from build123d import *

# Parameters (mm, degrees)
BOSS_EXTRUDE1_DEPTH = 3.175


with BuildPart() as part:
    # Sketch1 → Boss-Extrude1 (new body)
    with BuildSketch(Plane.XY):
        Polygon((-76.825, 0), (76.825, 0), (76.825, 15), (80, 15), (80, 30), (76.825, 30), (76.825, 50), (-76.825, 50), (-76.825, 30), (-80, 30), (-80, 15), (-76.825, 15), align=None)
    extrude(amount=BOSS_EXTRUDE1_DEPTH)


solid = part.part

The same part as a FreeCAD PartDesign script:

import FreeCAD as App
import Part
import Sketcher

V = App.Vector
Q = App.Units.Quantity

doc = App.newDocument("Part")
body = doc.addObject("PartDesign::Body", "Body")

sketch1 = body.newObject("Sketcher::SketchObject", "Sketch")
sketch1.AttachmentSupport = (doc.getObject("XY_Plane"), [""])
sketch1.MapMode = "FlatFace"
sketch1.addGeometry([
    Part.LineSegment(V(-76.825, 0, 0), V(76.825, 0, 0)),
    Part.LineSegment(V(76.825, 0, 0), V(76.825, 15, 0)),
    Part.LineSegment(V(76.825, 15, 0), V(80, 15, 0)),
    Part.LineSegment(V(80, 15, 0), V(80, 30, 0)),
    Part.LineSegment(V(80, 30, 0), V(76.825, 30, 0)),
    Part.LineSegment(V(76.825, 30, 0), V(76.825, 50, 0)),
    Part.LineSegment(V(76.825, 50, 0), V(-76.825, 50, 0)),
    Part.LineSegment(V(-76.825, 50, 0), V(-76.825, 30, 0)),
    Part.LineSegment(V(-76.825, 30, 0), V(-80, 30, 0)),
    Part.LineSegment(V(-80, 30, 0), V(-80, 15, 0)),
    Part.LineSegment(V(-80, 15, 0), V(-76.825, 15, 0)),
    Part.LineSegment(V(-76.825, 15, 0), V(-76.825, 0, 0)),
], False)
sketch1.addConstraint([
    Sketcher.Constraint("Coincident", 0, 2, 1, 1),
    Sketcher.Constraint("Coincident", 1, 2, 2, 1),
    Sketcher.Constraint("Coincident", 2, 2, 3, 1),
    Sketcher.Constraint("Coincident", 3, 2, 4, 1),
    Sketcher.Constraint("Coincident", 4, 2, 5, 1),
    Sketcher.Constraint("Coincident", 5, 2, 6, 1),
    Sketcher.Constraint("Coincident", 6, 2, 7, 1),
    Sketcher.Constraint("Coincident", 7, 2, 8, 1),
    Sketcher.Constraint("Coincident", 8, 2, 9, 1),
    Sketcher.Constraint("Coincident", 9, 2, 10, 1),
    Sketcher.Constraint("Coincident", 10, 2, 11, 1),
    Sketcher.Constraint("Coincident", 11, 2, 0, 1),
    Sketcher.Constraint("Horizontal", 0),
    Sketcher.Constraint("Vertical", 1),
    Sketcher.Constraint("Horizontal", 2),
    Sketcher.Constraint("Vertical", 3),
    Sketcher.Constraint("Horizontal", 4),
    Sketcher.Constraint("Vertical", 5),
    Sketcher.Constraint("Horizontal", 6),
    Sketcher.Constraint("Vertical", 7),
    Sketcher.Constraint("Horizontal", 8),
    Sketcher.Constraint("Vertical", 9),
    Sketcher.Constraint("Horizontal", 10),
    Sketcher.Constraint("Vertical", 11),
    Sketcher.Constraint("Symmetric", 0, 2, 11, 2, -1, 1),
    Sketcher.Constraint("Symmetric", 4, 2, 7, 2, -2),
    Sketcher.Constraint("Symmetric", 2, 2, 9, 2, -2),
    Sketcher.Constraint("Vertical", 1, 2, 4, 2),
    Sketcher.Constraint("Equal", 1, 3),
    Sketcher.Constraint("DistanceY", 1, 1, 1, 2, Q("15 mm")),
    Sketcher.Constraint("DistanceY", 5, 1, 5, 2, Q("20 mm")),
    Sketcher.Constraint("DistanceX", -1, 1, 2, 2, Q("80 mm")),
    Sketcher.Constraint("DistanceX", 0, 1, 0, 2, Q("153.65 mm")),
])
pad1 = body.newObject("PartDesign::Pad", "Pad")
pad1.Profile = sketch1
pad1.Length = 3.175

doc.recompute()
